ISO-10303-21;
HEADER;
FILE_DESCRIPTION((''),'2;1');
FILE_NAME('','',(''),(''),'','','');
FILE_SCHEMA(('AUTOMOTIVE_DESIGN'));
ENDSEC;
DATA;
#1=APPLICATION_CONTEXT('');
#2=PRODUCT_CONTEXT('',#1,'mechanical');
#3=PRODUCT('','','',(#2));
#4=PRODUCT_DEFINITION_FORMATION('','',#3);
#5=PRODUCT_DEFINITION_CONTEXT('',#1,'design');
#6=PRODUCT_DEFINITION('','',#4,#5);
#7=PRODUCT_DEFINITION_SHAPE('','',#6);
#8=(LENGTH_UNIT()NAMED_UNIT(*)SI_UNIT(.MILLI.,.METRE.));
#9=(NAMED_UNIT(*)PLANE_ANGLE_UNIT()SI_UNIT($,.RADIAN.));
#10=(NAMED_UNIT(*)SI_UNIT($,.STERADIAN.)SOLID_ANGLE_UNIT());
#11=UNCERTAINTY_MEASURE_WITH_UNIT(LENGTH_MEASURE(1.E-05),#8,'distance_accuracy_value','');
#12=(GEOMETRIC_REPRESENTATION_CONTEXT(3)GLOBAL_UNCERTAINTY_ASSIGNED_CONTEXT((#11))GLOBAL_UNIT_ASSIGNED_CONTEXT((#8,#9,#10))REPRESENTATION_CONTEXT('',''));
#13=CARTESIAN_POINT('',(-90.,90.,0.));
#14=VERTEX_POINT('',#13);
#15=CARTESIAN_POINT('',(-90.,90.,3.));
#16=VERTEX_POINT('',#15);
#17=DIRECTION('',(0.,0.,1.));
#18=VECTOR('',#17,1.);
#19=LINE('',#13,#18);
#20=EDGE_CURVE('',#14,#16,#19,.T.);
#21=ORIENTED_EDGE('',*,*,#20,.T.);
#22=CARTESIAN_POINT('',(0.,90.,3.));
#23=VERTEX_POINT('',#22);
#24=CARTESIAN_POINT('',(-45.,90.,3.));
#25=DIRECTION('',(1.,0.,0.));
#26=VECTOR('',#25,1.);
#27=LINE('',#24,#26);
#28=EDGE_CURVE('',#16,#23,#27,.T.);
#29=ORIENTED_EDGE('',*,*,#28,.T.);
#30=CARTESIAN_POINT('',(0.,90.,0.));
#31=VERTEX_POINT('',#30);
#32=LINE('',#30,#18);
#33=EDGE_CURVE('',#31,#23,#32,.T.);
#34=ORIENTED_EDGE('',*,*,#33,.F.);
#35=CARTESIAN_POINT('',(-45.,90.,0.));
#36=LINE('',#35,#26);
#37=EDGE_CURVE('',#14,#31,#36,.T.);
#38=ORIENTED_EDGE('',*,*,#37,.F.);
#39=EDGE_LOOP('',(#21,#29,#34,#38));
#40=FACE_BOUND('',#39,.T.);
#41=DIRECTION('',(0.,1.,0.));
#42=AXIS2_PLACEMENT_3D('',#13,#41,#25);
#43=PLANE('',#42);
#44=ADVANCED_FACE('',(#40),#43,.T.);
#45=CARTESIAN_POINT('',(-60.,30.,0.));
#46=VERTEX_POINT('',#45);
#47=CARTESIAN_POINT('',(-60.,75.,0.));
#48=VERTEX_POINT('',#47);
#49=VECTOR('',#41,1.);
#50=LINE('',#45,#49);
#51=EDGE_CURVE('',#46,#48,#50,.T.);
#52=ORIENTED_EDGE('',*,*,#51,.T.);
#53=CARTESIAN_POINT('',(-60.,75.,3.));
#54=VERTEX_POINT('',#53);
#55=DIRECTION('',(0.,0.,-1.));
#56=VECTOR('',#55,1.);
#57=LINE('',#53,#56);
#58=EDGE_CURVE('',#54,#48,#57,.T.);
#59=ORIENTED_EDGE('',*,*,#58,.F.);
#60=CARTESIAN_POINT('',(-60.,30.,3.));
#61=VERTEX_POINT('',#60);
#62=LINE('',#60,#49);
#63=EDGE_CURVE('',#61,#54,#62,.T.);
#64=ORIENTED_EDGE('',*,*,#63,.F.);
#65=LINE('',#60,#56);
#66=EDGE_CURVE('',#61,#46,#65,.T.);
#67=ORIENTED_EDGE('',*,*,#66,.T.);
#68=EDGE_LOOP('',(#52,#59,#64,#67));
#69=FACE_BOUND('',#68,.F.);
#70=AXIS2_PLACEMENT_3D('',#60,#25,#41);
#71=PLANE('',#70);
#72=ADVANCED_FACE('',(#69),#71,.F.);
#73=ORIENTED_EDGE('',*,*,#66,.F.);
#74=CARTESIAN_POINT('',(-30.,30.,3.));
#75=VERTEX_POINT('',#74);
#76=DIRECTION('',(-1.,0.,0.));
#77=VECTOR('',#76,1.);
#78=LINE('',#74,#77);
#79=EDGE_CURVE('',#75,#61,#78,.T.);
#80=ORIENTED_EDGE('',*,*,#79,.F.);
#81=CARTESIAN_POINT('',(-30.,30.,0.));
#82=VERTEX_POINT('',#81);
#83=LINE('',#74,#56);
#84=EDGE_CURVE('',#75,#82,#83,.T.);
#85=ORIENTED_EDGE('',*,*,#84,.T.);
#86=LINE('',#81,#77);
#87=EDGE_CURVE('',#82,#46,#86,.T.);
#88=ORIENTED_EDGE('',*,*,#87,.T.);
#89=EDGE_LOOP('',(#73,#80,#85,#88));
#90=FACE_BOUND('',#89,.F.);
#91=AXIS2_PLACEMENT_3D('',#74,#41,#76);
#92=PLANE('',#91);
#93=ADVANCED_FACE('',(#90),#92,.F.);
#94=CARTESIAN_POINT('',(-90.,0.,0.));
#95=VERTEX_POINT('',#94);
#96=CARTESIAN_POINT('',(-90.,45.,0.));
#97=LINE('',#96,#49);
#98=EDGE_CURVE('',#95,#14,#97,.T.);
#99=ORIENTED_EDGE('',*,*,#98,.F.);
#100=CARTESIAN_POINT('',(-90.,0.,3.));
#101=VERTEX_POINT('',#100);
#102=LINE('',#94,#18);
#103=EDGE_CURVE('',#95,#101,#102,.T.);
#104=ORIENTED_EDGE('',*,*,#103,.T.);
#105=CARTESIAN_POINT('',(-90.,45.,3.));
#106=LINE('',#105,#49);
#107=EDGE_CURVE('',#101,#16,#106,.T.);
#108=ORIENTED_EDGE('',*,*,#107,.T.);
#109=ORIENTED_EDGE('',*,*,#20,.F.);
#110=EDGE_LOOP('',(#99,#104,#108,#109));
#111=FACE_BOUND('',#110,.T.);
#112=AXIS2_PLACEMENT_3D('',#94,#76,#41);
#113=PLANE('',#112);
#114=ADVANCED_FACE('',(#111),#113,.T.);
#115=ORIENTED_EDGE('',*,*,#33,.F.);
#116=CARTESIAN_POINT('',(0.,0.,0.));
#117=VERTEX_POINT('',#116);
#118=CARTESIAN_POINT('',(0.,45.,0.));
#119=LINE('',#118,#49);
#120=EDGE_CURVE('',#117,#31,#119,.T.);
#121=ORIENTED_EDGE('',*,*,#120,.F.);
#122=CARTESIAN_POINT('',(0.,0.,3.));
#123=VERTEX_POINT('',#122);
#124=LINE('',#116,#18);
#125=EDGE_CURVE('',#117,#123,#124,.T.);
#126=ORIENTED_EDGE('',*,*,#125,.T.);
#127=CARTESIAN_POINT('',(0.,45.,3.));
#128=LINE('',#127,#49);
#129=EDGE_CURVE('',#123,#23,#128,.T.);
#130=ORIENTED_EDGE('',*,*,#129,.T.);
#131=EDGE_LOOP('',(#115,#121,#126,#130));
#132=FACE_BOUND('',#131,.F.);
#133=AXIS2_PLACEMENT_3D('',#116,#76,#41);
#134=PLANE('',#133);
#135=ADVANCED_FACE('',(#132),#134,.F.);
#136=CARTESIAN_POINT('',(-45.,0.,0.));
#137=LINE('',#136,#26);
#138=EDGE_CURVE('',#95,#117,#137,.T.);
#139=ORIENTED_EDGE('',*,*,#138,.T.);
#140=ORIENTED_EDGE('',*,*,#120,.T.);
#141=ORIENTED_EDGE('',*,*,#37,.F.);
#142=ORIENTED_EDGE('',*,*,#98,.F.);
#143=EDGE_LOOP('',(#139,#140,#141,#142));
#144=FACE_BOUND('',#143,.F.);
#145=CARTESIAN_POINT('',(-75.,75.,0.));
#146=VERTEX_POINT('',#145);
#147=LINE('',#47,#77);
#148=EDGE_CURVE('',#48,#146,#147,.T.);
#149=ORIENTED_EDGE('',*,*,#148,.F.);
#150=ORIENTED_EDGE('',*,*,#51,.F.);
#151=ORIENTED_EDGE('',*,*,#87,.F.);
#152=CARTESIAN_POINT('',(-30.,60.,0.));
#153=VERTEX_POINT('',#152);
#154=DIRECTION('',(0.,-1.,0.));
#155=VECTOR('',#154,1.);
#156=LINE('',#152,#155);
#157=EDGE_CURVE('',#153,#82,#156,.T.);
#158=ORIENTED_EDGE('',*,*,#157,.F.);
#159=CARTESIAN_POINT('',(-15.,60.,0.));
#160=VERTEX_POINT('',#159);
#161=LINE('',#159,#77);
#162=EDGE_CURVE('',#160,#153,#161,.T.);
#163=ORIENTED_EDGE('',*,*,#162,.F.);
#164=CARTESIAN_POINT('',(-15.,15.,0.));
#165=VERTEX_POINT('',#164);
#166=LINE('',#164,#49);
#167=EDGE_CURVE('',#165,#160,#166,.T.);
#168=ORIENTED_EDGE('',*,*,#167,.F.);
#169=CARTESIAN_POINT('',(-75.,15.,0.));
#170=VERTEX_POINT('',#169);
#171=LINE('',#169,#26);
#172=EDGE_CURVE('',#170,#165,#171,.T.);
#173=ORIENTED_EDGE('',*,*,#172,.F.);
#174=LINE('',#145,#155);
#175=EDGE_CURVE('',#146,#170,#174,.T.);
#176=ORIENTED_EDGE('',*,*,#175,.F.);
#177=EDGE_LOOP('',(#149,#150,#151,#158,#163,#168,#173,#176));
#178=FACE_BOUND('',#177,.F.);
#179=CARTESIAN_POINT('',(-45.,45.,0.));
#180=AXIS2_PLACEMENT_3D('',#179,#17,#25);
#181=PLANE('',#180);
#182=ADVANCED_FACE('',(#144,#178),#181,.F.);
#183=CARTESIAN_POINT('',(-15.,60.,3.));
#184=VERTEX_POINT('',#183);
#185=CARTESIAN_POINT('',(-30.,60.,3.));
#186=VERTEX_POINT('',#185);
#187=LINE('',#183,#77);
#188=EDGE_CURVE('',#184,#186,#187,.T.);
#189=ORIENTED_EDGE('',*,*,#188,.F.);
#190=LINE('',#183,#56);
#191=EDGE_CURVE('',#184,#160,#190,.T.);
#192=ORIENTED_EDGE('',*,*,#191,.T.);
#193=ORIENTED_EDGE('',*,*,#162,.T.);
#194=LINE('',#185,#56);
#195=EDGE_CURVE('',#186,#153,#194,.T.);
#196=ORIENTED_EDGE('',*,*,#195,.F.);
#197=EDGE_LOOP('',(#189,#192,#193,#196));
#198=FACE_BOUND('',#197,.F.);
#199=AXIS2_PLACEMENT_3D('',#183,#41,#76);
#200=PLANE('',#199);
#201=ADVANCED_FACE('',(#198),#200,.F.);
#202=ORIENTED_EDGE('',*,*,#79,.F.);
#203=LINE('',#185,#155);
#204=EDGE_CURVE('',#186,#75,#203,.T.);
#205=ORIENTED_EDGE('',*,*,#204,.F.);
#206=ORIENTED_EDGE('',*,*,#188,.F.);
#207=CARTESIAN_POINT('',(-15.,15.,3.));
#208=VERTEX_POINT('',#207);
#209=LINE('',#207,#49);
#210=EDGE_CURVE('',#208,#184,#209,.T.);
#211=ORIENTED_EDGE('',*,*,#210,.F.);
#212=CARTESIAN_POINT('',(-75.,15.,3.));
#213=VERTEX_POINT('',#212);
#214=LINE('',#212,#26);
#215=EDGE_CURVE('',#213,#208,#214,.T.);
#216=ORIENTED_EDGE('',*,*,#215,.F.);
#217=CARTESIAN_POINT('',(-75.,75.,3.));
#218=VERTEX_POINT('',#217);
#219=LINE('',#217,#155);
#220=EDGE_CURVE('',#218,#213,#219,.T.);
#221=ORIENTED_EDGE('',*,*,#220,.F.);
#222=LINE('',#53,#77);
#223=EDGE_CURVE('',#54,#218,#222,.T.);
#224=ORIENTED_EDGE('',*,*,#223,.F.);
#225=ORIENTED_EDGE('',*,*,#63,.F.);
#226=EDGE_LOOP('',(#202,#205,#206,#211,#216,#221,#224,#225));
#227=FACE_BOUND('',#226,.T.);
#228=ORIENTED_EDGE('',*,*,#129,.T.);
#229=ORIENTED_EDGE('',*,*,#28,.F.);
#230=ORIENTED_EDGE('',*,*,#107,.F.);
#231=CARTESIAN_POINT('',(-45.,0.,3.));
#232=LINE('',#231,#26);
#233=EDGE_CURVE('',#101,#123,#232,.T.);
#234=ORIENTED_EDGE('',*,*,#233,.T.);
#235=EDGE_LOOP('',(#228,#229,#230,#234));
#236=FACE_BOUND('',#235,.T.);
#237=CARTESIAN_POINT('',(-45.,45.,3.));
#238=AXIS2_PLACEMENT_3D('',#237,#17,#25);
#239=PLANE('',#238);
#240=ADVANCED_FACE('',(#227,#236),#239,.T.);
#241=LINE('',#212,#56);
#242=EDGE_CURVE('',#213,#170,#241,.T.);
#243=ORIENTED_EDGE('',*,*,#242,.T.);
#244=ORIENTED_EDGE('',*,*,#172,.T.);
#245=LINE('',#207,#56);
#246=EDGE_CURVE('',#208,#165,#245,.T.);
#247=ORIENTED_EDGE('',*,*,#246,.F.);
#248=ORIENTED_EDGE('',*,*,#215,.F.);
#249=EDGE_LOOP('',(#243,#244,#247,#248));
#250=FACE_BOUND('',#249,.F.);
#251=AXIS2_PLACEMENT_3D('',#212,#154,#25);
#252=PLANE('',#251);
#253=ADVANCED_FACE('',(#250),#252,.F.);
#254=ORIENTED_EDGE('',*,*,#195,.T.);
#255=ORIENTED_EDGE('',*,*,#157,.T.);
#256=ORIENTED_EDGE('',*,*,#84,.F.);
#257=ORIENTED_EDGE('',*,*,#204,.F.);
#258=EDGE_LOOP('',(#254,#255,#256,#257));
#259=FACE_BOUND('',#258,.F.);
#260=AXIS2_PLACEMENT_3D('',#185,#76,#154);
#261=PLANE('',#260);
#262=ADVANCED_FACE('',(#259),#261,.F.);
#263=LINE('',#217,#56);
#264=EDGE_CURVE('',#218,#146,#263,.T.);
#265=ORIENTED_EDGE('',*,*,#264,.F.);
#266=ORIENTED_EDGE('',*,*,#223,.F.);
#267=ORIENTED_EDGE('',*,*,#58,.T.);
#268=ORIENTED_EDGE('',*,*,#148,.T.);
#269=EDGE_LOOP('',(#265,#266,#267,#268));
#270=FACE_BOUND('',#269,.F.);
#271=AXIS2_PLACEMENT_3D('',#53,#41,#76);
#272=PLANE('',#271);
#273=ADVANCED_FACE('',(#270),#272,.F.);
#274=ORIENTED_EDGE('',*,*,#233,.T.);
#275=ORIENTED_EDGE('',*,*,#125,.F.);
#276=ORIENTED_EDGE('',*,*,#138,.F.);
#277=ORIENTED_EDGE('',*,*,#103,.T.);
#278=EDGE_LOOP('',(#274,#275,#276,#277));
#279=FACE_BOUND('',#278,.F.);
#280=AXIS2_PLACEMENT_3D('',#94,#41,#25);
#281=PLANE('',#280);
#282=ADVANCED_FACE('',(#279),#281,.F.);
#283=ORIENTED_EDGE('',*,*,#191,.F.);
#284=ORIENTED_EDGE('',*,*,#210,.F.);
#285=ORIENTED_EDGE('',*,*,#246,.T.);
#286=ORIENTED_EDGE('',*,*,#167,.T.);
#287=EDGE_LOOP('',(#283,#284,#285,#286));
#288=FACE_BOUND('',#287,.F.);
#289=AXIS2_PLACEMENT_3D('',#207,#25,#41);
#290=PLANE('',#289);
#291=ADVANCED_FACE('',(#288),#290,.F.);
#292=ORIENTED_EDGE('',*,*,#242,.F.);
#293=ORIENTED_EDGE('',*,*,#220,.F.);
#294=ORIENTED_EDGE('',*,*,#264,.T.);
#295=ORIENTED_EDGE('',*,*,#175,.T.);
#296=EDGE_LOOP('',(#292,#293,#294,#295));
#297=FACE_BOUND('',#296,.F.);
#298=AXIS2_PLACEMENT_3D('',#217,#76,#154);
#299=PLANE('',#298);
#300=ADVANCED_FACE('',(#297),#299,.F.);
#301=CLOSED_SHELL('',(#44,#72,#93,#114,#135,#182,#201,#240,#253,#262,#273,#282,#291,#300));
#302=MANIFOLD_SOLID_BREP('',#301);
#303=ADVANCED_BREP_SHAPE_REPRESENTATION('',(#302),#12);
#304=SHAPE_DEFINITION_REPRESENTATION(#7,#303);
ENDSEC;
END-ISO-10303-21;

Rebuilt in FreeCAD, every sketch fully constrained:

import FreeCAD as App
import Part
import Sketcher
from FreeCAD import Vector

doc = App.newDocument("Part")
body = doc.addObject("PartDesign::Body", "Body")

# Sketch on XY plane
sketch1 = doc.addObject("Sketcher::SketchObject", "Sketch")
body.addObject(sketch1)
sketch1.AttachmentSupport = (doc.XY_Plane, [""])
sketch1.MapMode = "FlatFace"
sketch1.addGeometry(Part.LineSegment(Vector(-90, 90, 0), Vector(-90, 0, 0)), False)
sketch1.addGeometry(Part.LineSegment(Vector(-90, 0, 0), Vector(0, 0, 0)), False)
sketch1.addGeometry(Part.LineSegment(Vector(0, 0, 0), Vector(0, 90, 0)), False)
sketch1.addGeometry(Part.LineSegment(Vector(0, 90, 0), Vector(-90, 90, 0)), False)
sketch1.addConstraint(Sketcher.Constraint("Coincident", 0, 2, 1, 1))
sketch1.addConstraint(Sketcher.Constraint("Coincident", 1, 2, 2, 1))
sketch1.addConstraint(Sketcher.Constraint("Coincident", 2, 2, 3, 1))
sketch1.addConstraint(Sketcher.Constraint("Coincident", 3, 2, 0, 1))
sketch1.addConstraint(Sketcher.Constraint("Vertical", 0))
sketch1.addConstraint(Sketcher.Constraint("Horizontal", 1))
sketch1.addConstraint(Sketcher.Constraint("Vertical", 2))
sketch1.addConstraint(Sketcher.Constraint("Horizontal", 3))
sketch1.addConstraint(Sketcher.Constraint("Coincident", 1, 2, -1, 1))
sketch1.addConstraint(Sketcher.Constraint("Equal", 3, 0))
sketch1.addConstraint(Sketcher.Constraint("DistanceX", 1, 1, 1, 2, 90.0))
pad1 = doc.addObject("PartDesign::Pad", "Pad")
body.addObject(pad1)
pad1.Profile = sketch1
pad1.Length = 3

# Sketch on XY plane
sketch2 = doc.addObject("Sketcher::SketchObject", "Sketch001")
body.addObject(sketch2)
sketch2.AttachmentSupport = (doc.XY_Plane, [""])
sketch2.MapMode = "FlatFace"
sketch2.AttachmentOffset = App.Placement(Vector(0, 0, 3), App.Rotation())
sketch2.addGeometry(Part.LineSegment(Vector(-75, 75, 0), Vector(-75, 15, 0)), False)
sketch2.addGeometry(Part.LineSegment(Vector(-75, 15, 0), Vector(-15, 15, 0)), False)
sketch2.addGeometry(Part.LineSegment(Vector(-15, 15, 0), Vector(-15, 60, 0)), False)
sketch2.addGeometry(Part.LineSegment(Vector(-15, 60, 0), Vector(-30, 60, 0)), False)
sketch2.addGeometry(Part.LineSegment(Vector(-30, 60, 0), Vector(-30, 30, 0)), False)
sketch2.addGeometry(Part.LineSegment(Vector(-30, 30, 0), Vector(-60, 30, 0)), False)
sketch2.addGeometry(Part.LineSegment(Vector(-60, 30, 0), Vector(-60, 75, 0)), False)
sketch2.addGeometry(Part.LineSegment(Vector(-60, 75, 0), Vector(-75, 75, 0)), False)
sketch2.addConstraint(Sketcher.Constraint("Coincident", 0, 2, 1, 1))
sketch2.addConstraint(Sketcher.Constraint("Coincident", 1, 2, 2, 1))
sketch2.addConstraint(Sketcher.Constraint("Coincident", 2, 2, 3, 1))
sketch2.addConstraint(Sketcher.Constraint("Coincident", 3, 2, 4, 1))
sketch2.addConstraint(Sketcher.Constraint("Coincident", 4, 2, 5, 1))
sketch2.addConstraint(Sketcher.Constraint("Coincident", 5, 2, 6, 1))
sketch2.addConstraint(Sketcher.Constraint("Coincident", 6, 2, 7, 1))
sketch2.addConstraint(Sketcher.Constraint("Coincident", 7, 2, 0, 1))
sketch2.addConstraint(Sketcher.Constraint("Vertical", 0))
sketch2.addConstraint(Sketcher.Constraint("Horizontal", 1))
sketch2.addConstraint(Sketcher.Constraint("Vertical", 2))
sketch2.addConstraint(Sketcher.Constraint("Horizontal", 3))
sketch2.addConstraint(Sketcher.Constraint("Vertical", 4))
sketch2.addConstraint(Sketcher.Constraint("Horizontal", 5))
sketch2.addConstraint(Sketcher.Constraint("Vertical", 6))
sketch2.addConstraint(Sketcher.Constraint("Horizontal", 7))
sketch2.addConstraint(Sketcher.Constraint("Equal", 3, 7))
sketch2.addConstraint(Sketcher.Constraint("Equal", 1, 0))
sketch2.addConstraint(Sketcher.Constraint("Equal", 5, 4))
sketch2.addConstraint(Sketcher.Constraint("Equal", 2, 6))
sketch2.addConstraint(Sketcher.Constraint("DistanceX", 1, 1, 1, 2, 60.0))
sketch2.addConstraint(Sketcher.Constraint("DistanceX", 3, 2, 3, 1, 15.0))
sketch2.addConstraint(Sketcher.Constraint("DistanceX", 0, 2, -1, 1, 75.0))
sketch2.addConstraint(Sketcher.Constraint("DistanceY", -1, 1, 0, 2, 15.0))
pocket1 = doc.addObject("PartDesign::Pocket", "Pocket")
body.addObject(pocket1)
pocket1.Profile = sketch2
pocket1.Length = 3

doc.recompute()
